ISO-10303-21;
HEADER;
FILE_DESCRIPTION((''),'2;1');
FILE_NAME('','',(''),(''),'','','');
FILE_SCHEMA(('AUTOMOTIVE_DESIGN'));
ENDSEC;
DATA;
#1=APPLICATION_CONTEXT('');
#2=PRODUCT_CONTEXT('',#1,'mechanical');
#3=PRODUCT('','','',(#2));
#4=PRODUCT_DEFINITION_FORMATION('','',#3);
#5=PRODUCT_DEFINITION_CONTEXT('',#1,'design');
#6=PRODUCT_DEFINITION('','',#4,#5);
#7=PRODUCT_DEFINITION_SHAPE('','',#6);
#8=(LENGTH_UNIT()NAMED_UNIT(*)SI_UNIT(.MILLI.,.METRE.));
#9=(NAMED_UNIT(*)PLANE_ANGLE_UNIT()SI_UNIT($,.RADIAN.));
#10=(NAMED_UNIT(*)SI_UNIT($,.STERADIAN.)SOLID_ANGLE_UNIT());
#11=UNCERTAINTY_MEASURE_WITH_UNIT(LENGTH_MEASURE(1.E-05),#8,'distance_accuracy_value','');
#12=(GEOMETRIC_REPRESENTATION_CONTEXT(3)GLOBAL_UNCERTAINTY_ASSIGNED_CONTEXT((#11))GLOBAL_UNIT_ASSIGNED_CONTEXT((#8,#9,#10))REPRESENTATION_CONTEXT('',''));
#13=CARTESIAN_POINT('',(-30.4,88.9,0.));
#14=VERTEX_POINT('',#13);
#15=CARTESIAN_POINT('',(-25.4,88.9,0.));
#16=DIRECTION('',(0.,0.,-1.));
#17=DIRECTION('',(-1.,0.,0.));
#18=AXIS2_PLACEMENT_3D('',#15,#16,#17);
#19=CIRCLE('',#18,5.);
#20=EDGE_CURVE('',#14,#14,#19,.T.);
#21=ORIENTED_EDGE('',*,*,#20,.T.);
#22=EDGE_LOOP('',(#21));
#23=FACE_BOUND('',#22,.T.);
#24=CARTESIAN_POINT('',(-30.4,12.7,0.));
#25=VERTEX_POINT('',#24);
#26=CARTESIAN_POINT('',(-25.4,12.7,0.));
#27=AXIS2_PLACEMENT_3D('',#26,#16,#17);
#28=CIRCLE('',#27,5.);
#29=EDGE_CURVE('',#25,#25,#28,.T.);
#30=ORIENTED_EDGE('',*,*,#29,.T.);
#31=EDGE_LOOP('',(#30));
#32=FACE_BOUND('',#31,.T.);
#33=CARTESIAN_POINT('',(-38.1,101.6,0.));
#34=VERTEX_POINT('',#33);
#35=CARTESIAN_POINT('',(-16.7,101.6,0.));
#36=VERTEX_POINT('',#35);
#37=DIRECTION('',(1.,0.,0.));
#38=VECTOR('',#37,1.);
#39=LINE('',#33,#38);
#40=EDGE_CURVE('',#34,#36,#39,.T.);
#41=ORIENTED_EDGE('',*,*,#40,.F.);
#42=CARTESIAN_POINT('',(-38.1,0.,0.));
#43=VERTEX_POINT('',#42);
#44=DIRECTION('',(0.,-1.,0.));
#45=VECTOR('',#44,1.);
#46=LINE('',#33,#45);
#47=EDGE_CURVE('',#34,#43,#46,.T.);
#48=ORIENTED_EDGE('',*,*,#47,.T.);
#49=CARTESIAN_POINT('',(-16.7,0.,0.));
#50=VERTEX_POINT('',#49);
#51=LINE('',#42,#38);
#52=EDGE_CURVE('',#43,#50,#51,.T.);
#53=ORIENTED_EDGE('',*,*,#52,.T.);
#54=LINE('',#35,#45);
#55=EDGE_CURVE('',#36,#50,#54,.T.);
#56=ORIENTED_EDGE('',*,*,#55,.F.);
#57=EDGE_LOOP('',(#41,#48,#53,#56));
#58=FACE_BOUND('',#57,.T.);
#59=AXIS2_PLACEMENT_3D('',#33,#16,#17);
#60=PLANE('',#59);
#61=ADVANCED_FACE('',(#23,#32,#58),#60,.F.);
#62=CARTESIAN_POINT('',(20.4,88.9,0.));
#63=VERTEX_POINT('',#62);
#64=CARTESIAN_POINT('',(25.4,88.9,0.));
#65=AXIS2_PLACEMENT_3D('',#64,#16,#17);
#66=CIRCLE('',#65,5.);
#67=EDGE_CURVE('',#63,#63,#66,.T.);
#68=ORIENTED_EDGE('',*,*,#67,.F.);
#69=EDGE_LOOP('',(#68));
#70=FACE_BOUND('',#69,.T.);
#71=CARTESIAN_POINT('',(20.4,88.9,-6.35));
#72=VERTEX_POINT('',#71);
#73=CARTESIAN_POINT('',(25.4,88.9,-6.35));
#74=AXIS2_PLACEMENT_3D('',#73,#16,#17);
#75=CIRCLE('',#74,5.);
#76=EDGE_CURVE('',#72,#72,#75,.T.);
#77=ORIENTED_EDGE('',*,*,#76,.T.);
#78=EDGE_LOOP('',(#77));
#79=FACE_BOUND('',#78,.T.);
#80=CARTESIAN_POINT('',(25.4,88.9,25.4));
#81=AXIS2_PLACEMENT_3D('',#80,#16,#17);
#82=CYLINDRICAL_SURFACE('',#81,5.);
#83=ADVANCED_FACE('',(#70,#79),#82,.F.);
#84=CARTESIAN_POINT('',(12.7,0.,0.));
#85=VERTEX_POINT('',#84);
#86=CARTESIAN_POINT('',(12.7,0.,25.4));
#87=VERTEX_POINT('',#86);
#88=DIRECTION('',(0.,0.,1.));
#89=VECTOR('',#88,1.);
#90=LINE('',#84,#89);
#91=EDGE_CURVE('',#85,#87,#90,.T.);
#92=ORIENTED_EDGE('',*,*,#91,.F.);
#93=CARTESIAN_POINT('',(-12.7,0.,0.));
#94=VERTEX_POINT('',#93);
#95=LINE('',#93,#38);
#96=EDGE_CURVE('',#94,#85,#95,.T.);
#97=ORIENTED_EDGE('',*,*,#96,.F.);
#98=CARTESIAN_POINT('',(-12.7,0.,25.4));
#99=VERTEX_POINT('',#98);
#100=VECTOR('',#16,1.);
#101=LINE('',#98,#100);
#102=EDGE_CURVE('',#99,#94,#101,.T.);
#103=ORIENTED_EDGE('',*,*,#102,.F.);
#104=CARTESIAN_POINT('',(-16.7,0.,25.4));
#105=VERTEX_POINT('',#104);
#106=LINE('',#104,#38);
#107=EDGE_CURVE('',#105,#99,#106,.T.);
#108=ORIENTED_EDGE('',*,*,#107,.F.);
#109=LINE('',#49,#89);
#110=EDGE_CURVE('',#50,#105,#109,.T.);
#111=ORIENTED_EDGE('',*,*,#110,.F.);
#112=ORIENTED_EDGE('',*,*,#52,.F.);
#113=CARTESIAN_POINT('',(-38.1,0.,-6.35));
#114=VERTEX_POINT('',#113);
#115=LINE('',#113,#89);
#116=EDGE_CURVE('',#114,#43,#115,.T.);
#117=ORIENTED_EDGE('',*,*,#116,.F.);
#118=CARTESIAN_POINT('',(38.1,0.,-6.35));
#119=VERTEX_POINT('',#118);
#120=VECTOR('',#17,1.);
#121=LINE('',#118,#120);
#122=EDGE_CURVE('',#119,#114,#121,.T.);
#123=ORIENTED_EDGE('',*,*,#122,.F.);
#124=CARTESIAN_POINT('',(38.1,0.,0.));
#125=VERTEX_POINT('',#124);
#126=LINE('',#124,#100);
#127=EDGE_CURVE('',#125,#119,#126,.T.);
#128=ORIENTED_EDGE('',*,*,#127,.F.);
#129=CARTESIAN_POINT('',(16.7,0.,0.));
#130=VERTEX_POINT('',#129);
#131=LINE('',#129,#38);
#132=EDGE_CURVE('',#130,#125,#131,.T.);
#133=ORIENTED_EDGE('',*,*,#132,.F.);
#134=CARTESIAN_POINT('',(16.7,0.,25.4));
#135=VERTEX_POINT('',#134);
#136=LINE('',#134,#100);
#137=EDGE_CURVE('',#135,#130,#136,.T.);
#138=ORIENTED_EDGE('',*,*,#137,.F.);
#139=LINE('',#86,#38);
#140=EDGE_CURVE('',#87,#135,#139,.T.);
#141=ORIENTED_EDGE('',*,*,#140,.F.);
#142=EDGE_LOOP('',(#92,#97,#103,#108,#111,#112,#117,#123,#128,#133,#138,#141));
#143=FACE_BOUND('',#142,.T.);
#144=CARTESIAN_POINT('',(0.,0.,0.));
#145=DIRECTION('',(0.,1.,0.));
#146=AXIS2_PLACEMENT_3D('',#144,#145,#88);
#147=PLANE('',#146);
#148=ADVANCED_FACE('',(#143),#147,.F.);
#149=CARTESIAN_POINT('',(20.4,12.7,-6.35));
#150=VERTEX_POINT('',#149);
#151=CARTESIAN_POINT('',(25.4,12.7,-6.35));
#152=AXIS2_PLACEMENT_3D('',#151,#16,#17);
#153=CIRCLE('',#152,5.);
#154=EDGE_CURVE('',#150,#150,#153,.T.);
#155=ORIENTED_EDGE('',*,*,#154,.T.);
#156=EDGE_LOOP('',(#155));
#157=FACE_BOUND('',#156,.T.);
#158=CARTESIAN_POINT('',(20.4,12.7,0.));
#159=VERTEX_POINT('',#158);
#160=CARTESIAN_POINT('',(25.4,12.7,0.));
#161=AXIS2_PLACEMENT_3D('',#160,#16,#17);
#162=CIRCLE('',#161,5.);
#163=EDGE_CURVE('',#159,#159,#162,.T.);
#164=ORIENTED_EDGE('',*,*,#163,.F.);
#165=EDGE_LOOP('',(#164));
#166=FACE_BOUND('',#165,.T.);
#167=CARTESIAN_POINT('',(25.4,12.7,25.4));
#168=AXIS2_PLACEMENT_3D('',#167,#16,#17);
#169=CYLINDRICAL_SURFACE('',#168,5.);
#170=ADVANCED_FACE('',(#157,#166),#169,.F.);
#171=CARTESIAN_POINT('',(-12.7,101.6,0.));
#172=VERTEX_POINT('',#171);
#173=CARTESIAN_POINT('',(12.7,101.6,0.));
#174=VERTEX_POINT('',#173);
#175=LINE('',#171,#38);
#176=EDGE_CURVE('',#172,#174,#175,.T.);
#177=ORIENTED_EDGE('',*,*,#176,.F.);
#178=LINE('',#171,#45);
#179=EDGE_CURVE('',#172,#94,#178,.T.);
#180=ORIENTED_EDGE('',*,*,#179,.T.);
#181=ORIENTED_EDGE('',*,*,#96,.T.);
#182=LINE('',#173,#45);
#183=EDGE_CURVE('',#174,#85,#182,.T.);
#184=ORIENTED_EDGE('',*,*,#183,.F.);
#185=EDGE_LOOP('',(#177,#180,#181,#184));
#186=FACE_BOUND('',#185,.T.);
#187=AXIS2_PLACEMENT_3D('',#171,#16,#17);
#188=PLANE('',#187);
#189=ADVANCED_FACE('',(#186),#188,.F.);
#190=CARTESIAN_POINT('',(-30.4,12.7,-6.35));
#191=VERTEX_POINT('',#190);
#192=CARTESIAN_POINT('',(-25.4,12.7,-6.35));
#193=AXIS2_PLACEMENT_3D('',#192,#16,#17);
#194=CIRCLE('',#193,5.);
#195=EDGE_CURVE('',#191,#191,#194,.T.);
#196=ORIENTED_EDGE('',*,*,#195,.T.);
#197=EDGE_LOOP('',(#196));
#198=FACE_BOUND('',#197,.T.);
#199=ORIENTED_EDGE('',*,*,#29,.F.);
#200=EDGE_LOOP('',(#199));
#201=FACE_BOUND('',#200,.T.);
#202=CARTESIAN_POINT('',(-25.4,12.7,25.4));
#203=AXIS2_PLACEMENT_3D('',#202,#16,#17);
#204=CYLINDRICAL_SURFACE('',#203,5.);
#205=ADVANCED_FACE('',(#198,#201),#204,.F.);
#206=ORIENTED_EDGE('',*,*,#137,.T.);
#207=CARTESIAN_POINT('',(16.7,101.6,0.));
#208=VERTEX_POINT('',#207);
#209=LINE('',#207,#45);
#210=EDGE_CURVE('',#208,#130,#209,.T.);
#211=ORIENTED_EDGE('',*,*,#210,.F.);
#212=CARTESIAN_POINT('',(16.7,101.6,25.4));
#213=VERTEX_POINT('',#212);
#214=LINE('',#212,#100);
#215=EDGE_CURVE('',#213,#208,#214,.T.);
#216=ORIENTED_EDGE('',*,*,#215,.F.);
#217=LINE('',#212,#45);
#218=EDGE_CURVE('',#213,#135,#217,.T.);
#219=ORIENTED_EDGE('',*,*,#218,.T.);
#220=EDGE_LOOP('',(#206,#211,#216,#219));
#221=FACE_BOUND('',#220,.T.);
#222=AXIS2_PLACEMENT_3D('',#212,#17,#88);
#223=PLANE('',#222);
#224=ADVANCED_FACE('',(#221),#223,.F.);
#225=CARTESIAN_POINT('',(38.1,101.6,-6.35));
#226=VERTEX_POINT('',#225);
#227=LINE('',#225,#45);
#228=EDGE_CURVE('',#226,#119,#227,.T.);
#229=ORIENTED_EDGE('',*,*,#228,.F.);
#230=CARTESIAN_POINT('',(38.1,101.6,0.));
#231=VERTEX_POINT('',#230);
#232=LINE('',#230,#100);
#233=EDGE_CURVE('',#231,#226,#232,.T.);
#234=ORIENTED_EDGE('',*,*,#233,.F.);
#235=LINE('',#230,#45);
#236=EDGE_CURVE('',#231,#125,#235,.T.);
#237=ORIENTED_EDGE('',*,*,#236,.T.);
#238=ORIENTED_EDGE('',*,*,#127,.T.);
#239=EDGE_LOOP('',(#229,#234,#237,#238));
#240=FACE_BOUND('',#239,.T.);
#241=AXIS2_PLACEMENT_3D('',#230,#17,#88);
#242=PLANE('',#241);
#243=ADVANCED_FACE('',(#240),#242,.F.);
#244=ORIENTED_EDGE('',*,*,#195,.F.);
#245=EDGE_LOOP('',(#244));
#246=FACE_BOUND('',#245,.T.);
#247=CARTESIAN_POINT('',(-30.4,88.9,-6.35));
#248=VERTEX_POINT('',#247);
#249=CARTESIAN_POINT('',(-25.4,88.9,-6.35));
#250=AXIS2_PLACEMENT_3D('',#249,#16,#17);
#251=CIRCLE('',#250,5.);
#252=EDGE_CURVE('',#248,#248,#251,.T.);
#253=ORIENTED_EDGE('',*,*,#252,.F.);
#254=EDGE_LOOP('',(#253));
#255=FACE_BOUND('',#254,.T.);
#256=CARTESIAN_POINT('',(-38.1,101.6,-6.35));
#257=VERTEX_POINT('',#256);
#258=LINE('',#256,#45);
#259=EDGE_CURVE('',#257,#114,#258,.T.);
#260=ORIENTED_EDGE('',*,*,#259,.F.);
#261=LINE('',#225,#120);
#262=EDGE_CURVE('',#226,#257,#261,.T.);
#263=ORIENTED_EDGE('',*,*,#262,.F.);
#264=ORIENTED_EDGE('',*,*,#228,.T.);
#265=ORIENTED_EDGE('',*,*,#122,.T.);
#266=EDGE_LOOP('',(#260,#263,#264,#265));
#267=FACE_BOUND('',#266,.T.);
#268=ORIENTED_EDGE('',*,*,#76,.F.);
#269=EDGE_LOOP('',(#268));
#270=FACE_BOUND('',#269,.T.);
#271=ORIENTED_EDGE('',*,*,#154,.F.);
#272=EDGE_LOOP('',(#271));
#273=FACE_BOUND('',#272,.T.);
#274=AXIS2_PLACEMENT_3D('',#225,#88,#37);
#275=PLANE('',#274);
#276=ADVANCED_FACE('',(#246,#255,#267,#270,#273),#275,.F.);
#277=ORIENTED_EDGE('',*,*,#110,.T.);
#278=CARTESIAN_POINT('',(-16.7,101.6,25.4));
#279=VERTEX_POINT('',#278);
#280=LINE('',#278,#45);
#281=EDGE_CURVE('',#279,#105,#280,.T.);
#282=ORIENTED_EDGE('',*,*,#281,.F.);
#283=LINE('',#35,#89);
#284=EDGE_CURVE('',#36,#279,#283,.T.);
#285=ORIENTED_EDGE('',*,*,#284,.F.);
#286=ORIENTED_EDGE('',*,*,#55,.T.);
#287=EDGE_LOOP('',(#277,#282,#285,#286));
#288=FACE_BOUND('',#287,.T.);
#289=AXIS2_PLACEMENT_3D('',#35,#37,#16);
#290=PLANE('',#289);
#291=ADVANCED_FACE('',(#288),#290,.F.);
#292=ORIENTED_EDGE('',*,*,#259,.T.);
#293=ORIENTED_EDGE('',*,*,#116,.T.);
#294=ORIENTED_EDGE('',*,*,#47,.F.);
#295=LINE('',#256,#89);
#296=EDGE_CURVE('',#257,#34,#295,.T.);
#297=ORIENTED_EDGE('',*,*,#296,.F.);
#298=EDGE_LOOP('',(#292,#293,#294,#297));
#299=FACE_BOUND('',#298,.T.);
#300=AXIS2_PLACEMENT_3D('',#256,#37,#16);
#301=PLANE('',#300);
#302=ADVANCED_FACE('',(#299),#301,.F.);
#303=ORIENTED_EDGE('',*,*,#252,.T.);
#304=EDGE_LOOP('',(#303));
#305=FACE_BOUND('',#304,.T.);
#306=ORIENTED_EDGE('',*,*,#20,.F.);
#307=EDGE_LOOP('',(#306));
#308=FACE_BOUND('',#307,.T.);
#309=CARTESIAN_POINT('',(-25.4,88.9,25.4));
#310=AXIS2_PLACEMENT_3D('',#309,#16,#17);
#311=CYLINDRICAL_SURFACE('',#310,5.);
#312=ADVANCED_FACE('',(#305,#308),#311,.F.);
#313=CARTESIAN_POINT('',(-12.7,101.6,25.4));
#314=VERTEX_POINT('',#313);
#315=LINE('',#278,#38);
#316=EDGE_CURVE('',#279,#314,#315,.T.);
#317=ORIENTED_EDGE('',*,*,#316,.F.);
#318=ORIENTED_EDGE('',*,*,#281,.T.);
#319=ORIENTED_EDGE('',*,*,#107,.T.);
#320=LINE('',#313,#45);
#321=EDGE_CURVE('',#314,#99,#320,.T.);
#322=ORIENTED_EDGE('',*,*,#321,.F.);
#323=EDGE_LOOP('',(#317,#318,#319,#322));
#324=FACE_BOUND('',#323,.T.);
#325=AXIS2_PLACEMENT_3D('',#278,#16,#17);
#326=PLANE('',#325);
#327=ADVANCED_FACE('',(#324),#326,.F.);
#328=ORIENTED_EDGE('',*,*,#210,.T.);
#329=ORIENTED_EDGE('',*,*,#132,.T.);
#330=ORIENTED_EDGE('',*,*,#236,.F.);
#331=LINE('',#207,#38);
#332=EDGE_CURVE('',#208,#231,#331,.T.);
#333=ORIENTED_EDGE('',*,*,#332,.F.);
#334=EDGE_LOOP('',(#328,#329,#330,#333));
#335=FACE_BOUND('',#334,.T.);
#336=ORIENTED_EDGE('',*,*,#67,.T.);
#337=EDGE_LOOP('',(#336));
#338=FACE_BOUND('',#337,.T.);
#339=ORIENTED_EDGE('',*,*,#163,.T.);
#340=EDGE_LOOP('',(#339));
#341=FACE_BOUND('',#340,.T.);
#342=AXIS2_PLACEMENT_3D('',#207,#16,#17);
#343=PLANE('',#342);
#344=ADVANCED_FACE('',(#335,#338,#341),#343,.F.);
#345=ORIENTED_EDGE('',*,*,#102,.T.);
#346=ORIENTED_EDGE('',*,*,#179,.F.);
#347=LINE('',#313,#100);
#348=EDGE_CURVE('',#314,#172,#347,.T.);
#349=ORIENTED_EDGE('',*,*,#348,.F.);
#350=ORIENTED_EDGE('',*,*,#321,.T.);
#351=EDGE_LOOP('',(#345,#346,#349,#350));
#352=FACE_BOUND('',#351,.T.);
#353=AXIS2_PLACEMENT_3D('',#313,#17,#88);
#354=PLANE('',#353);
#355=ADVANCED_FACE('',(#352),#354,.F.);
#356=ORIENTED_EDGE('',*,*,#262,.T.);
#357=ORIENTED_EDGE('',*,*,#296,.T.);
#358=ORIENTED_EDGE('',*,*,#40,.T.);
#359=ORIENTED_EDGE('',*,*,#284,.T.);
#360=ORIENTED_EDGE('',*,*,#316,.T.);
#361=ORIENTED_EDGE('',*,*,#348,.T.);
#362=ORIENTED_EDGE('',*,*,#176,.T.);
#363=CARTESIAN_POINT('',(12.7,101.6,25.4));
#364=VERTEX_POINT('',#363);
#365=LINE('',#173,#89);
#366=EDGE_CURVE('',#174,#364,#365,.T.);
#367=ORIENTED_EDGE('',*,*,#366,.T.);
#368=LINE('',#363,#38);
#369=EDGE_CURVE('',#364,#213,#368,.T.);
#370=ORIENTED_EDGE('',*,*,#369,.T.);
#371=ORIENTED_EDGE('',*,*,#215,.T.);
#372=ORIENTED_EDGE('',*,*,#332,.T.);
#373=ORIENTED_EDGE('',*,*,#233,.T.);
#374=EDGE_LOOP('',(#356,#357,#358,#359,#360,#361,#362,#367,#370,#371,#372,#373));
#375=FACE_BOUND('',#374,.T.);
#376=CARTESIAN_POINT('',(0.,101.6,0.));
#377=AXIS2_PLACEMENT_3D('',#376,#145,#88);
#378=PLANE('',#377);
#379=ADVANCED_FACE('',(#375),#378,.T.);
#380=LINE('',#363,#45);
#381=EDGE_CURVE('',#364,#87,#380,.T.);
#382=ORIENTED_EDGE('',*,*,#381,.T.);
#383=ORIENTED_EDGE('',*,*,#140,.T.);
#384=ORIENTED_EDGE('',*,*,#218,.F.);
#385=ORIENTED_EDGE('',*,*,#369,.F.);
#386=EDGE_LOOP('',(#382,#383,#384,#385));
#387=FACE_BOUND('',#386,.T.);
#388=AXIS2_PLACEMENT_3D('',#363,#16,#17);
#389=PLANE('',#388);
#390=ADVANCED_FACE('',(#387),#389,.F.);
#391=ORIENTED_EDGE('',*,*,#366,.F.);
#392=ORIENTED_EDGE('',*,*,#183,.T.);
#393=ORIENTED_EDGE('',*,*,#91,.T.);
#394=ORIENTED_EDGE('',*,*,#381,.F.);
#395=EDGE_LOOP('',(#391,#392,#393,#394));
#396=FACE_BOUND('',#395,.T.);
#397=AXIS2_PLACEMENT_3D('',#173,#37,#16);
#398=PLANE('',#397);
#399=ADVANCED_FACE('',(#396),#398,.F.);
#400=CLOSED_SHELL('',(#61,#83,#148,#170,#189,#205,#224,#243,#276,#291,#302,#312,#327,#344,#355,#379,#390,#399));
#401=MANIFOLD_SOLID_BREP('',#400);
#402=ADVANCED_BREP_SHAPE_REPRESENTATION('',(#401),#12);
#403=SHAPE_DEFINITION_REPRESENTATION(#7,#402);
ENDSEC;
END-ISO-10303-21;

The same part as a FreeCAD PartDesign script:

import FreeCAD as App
import Part
import Sketcher

V = App.Vector
Q = App.Units.Quantity

doc = App.newDocument("Part")
body = doc.addObject("PartDesign::Body", "Body")

# Sketch on XZ plane
sketch1 = doc.addObject("Sketcher::SketchObject", "Sketch")
body.addObject(sketch1)
sketch1.AttachmentSupport = (doc.XZ_Plane, [""])
sketch1.MapMode = "FlatFace"
sketch1.addGeometry([
    Part.LineSegment(V(-12.7, 0, 0), V(12.7, 0, 0)),  # 0
    Part.LineSegment(V(12.7, 0, 0), V(12.7, 25.4, 0)),  # 1
    Part.LineSegment(V(12.7, 25.4, 0), V(16.7, 25.4, 0)),  # 2
    Part.LineSegment(V(16.7, 25.4, 0), V(16.7, 0, 0)),  # 3
    Part.LineSegment(V(16.7, 0, 0), V(38.1, 0, 0)),  # 4
    Part.LineSegment(V(38.1, 0, 0), V(38.1, -6.3, 0)),  # 5
    Part.LineSegment(V(38.1, -6.3, 0), V(-38.1, -6.3, 0)),  # 6
    Part.LineSegment(V(-38.1, -6.3, 0), V(-38.1, 0, 0)),  # 7
    Part.LineSegment(V(-38.1, 0, 0), V(-16.7, 0, 0)),  # 8
    Part.LineSegment(V(-16.7, 0, 0), V(-16.7, 25.4, 0)),  # 9
    Part.LineSegment(V(-16.7, 25.4, 0), V(-12.7, 25.4, 0)),  # 10
    Part.LineSegment(V(-12.7, 25.4, 0), V(-12.7, 0, 0)),  # 11
], False)
sketch1.addConstraint([
    Sketcher.Constraint("Coincident", 0, 2, 1, 1),
    Sketcher.Constraint("Coincident", 1, 2, 2, 1),
    Sketcher.Constraint("Coincident", 2, 2, 3, 1),
    Sketcher.Constraint("Coincident", 3, 2, 4, 1),
    Sketcher.Constraint("Coincident", 4, 2, 5, 1),
    Sketcher.Constraint("Coincident", 5, 2, 6, 1),
    Sketcher.Constraint("Coincident", 6, 2, 7, 1),
    Sketcher.Constraint("Coincident", 7, 2, 8, 1),
    Sketcher.Constraint("Coincident", 8, 2, 9, 1),
    Sketcher.Constraint("Coincident", 9, 2, 10, 1),
    Sketcher.Constraint("Coincident", 10, 2, 11, 1),
    Sketcher.Constraint("Coincident", 11, 2, 0, 1),
    Sketcher.Constraint("Horizontal", 0),
    Sketcher.Constraint("Vertical", 1),
    Sketcher.Constraint("Horizontal", 2),
    Sketcher.Constraint("Vertical", 3),
    Sketcher.Constraint("Horizontal", 4),
    Sketcher.Constraint("Vertical", 5),
    Sketcher.Constraint("Horizontal", 6),
    Sketcher.Constraint("Vertical", 7),
    Sketcher.Constraint("Horizontal", 8),
    Sketcher.Constraint("Vertical", 9),
    Sketcher.Constraint("Horizontal", 10),
    Sketcher.Constraint("Vertical", 11),
    Sketcher.Constraint("Symmetric", 4, 2, 7, 2, -1, 1),
    Sketcher.Constraint("Symmetric", 0, 2, 11, 2, -1, 1),
    Sketcher.Constraint("Symmetric", 3, 2, 8, 2, -2),
    Sketcher.Constraint("Horizontal", 2, 2, 9, 2),
    Sketcher.Constraint("Equal", 0, 1),
    Sketcher.Constraint("DistanceX", 0, 1, 0, 2, Q("1 in")),
    Sketcher.Constraint("DistanceX", 6, 2, 6, 1, Q("3 in")),
    Sketcher.Constraint("DistanceY", 5, 2, 5, 1, Q("0.25 in")),
    Sketcher.Constraint("DistanceX", 2, 1, 2, 2, Q("4 mm")),
])
pad1 = doc.addObject("PartDesign::Pad", "Pad")
body.addObject(pad1)
pad1.Profile = sketch1
pad1.Length = Q("4 in")
pad1.Reversed = True

# Sketch on XY plane
sketch2 = doc.addObject("Sketcher::SketchObject", "Sketch001")
body.addObject(sketch2)
sketch2.AttachmentSupport = (doc.XY_Plane, [""])
sketch2.MapMode = "FlatFace"
sketch2.AttachmentOffset = App.Placement(V(0, 0, -0.25 * 25.4), App.Rotation())
sketch2.addGeometry([
    Part.Circle(V(25, 89, 0), V(0, 0, 1), 5),
    Part.Circle(V(-25, 89, 0), V(0, 0, 1), 5),
    Part.Circle(V(25, 13, 0), V(0, 0, 1), 5),
    Part.Circle(V(-25, 13, 0), V(0, 0, 1), 5),
], False)
sketch2.addConstraint([
    Sketcher.Constraint("Equal", 0, 1),
    Sketcher.Constraint("Equal", 1, 2),
    Sketcher.Constraint("Equal", 2, 3),
    Sketcher.Constraint("Symmetric", 0, 3, 1, 3, -2),
    Sketcher.Constraint("Symmetric", 2, 3, 3, 3, -2),
    Sketcher.Constraint("Vertical", 0, 3, 2, 3),
    Sketcher.Constraint("DistanceX", -1, 1, 0, 3, Q("1 in")),
    Sketcher.Constraint("DistanceY", 2, 3, 0, 3, Q("3 in")),
    Sketcher.Constraint("DistanceY", -1, 1, 0, 3, Q("3.5 in")),
    Sketcher.Constraint("Diameter", 0, Q("10 mm")),
])
pocket1 = doc.addObject("PartDesign::Pocket", "Pocket")
body.addObject(pocket1)
pocket1.Profile = sketch2
pocket1.Type = "ThroughAll"
pocket1.Reversed = True

doc.recompute()
